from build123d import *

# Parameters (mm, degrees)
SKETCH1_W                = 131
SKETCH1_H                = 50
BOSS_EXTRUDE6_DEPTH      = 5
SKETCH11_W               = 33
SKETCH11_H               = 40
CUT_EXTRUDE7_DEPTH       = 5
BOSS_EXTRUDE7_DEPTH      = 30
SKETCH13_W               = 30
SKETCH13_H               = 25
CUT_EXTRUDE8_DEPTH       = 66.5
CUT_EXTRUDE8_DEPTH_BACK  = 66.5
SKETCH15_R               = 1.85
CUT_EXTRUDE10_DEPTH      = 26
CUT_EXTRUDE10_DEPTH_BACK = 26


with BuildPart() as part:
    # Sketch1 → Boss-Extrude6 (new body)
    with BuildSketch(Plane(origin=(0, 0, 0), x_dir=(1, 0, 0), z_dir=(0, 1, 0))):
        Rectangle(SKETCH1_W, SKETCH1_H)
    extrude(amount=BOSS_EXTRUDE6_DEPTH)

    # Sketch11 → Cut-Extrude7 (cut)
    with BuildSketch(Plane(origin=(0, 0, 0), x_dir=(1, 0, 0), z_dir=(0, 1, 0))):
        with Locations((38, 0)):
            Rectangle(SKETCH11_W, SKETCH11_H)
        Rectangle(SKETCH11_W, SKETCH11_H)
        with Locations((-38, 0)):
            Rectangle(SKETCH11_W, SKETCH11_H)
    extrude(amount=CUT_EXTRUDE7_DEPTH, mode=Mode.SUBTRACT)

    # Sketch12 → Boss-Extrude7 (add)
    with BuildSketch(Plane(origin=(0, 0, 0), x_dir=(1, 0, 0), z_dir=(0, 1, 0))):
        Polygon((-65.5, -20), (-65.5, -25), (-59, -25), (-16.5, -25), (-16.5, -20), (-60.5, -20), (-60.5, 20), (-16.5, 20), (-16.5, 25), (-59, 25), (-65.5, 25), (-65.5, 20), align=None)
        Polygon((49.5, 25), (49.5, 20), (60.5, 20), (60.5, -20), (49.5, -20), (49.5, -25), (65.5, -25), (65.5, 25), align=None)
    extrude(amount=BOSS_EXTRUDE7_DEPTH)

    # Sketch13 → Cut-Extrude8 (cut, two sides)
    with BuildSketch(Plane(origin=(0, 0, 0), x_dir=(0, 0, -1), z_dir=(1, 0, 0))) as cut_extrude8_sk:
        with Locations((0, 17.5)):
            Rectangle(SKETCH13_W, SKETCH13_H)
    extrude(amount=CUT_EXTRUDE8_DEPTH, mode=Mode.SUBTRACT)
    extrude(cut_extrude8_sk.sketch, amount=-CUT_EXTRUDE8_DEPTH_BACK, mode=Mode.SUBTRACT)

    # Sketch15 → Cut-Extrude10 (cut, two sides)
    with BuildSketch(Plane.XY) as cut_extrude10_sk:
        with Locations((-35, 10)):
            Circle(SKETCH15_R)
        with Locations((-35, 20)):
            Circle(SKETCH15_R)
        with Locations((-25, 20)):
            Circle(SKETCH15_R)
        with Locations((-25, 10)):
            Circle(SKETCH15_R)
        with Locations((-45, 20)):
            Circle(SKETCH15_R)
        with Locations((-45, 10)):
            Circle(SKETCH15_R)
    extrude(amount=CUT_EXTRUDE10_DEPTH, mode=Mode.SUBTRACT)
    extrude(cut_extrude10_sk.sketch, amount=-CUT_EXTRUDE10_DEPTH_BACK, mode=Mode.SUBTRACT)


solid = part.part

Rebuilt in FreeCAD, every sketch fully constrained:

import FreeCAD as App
import Part
import Sketcher

doc = App.newDocument("Part")
body = doc.addObject("PartDesign::Body", "Body")

sketch1 = body.newObject("Sketcher::SketchObject", "Sketch")
sketch1.AttachmentSupport = (doc.getObject("XZ_Plane"), [""])
sketch1.MapMode = "FlatFace"
sketch1.addGeometry([
    Part.LineSegment(App.Vector(-66, -25, 0), App.Vector(-66, 25, 0)),
    Part.LineSegment(App.Vector(-66, 25, 0), App.Vector(66, 25, 0)),
    Part.LineSegment(App.Vector(66, 25, 0), App.Vector(66, -25, 0)),
    Part.LineSegment(App.Vector(66, -25, 0), App.Vector(-66, -25, 0)),
], False)
sketch1.addConstraint([
    Sketcher.Constraint("Coincident", 0, 2, 1, 1),
    Sketcher.Constraint("Coincident", 1, 2, 2, 1),
    Sketcher.Constraint("Coincident", 2, 2, 3, 1),
    Sketcher.Constraint("Coincident", 3, 2, 0, 1),
    Sketcher.Constraint("Vertical", 0),
    Sketcher.Constraint("Horizontal", 1),
    Sketcher.Constraint("Vertical", 2),
    Sketcher.Constraint("Horizontal", 3),
    Sketcher.Constraint("Symmetric", 0, 2, 2, 2, -1, 1),
    Sketcher.Constraint("DistanceX", 1, 1, 1, 2, 131.0),
    Sketcher.Constraint("DistanceY", 0, 1, 0, 2, 50.0),
])
pad1 = body.newObject("PartDesign::Pad", "Pad")
pad1.Profile = sketch1
pad1.Length = 5
pad1.Reversed = True

sketch2 = body.newObject("Sketcher::SketchObject", "Sketch001")
sketch2.AttachmentSupport = (doc.getObject("XZ_Plane"), [""])
sketch2.MapMode = "FlatFace"
sketch2.addGeometry([
    Part.LineSegment(App.Vector(22, -20, 0), App.Vector(22, 20, 0)),
    Part.LineSegment(App.Vector(22, 20, 0), App.Vector(54, 20, 0)),
    Part.LineSegment(App.Vector(54, 20, 0), App.Vector(54, -20, 0)),
    Part.LineSegment(App.Vector(54, -20, 0), App.Vector(22, -20, 0)),
    Part.LineSegment(App.Vector(-16, -20, 0), App.Vector(-16, 20, 0)),
    Part.LineSegment(App.Vector(-16, 20, 0), App.Vector(16, 20, 0)),
    Part.LineSegment(App.Vector(16, 20, 0), App.Vector(16, -20, 0)),
    Part.LineSegment(App.Vector(16, -20, 0), App.Vector(-16, -20, 0)),
    Part.LineSegment(App.Vector(-54, -20, 0), App.Vector(-54, 20, 0)),
    Part.LineSegment(App.Vector(-54, 20, 0), App.Vector(-22, 20, 0)),
    Part.LineSegment(App.Vector(-22, 20, 0), App.Vector(-22, -20, 0)),
    Part.LineSegment(App.Vector(-22, -20, 0), App.Vector(-54, -20, 0)),
], False)
sketch2.addConstraint([
    Sketcher.Constraint("Coincident", 0, 2, 1, 1),
    Sketcher.Constraint("Coincident", 1, 2, 2, 1),
    Sketcher.Constraint("Coincident", 2, 2, 3, 1),
    Sketcher.Constraint("Coincident", 3, 2, 0, 1),
    Sketcher.Constraint("Coincident", 4, 2, 5, 1),
    Sketcher.Constraint("Coincident", 5, 2, 6, 1),
    Sketcher.Constraint("Coincident", 6, 2, 7, 1),
    Sketcher.Constraint("Coincident", 7, 2, 4, 1),
    Sketcher.Constraint("Coincident", 8, 2, 9, 1),
    Sketcher.Constraint("Coincident", 9, 2, 10, 1),
    Sketcher.Constraint("Coincident", 10, 2, 11, 1),
    Sketcher.Constraint("Coincident", 11, 2, 8, 1),
    Sketcher.Constraint("Vertical", 0),
    Sketcher.Constraint("Horizontal", 1),
    Sketcher.Constraint("Vertical", 2),
    Sketcher.Constraint("Horizontal", 3),
    Sketcher.Constraint("Vertical", 4),
    Sketcher.Constraint("Horizontal", 5),
    Sketcher.Constraint("Vertical", 6),
    Sketcher.Constraint("Horizontal", 7),
    Sketcher.Constraint("Vertical", 8),
    Sketcher.Constraint("Horizontal", 9),
    Sketcher.Constraint("Vertical", 10),
    Sketcher.Constraint("Horizontal", 11),
    Sketcher.Constraint("Symmetric", 4, 2, 6, 2, -1, 1),
    Sketcher.Constraint("Symmetric", 2, 2, 8, 2, -1, 1),
    Sketcher.Constraint("Symmetric", 0, 2, 10, 2, -1, 1),
    Sketcher.Constraint("Horizontal", 1, 2, 4, 2),
    Sketcher.Constraint("Horizontal", 3, 2, 6, 2),
    Sketcher.Constraint("Equal", 3, 5),
    Sketcher.Constraint("DistanceX", 1, 1, 1, 2, 33.0),
    Sketcher.Constraint("DistanceY", 0, 1, 0, 2, 40.0),
    Sketcher.Constraint("DistanceX", 4, 2, 0, 2, 38.0),
])
pocket1 = body.newObject("PartDesign::Pocket", "Pocket")
pocket1.Profile = sketch2
pocket1.Length = 5

sketch3 = body.newObject("Sketcher::SketchObject", "Sketch002")
sketch3.AttachmentSupport = (doc.getObject("XZ_Plane"), [""])
sketch3.MapMode = "FlatFace"
sketch3.addGeometry([
    Part.LineSegment(App.Vector(-66, 25, 0), App.Vector(-16, 25, 0)),
    Part.LineSegment(App.Vector(-16, 25, 0), App.Vector(-16, 20, 0)),
    Part.LineSegment(App.Vector(-16, 20, 0), App.Vector(-60, 20, 0)),
    Part.LineSegment(App.Vector(-60, 20, 0), App.Vector(-60, -20, 0)),
    Part.LineSegment(App.Vector(-60, -20, 0), App.Vector(-16, -20, 0)),
    Part.LineSegment(App.Vector(-16, -20, 0), App.Vector(-16, -25, 0)),
    Part.LineSegment(App.Vector(-16, -25, 0), App.Vector(-66, -25, 0)),
    Part.LineSegment(App.Vector(-66, -25, 0), App.Vector(-66, 25, 0)),
    Part.LineSegment(App.Vector(50, -25, 0), App.Vector(50, -20, 0)),
    Part.LineSegment(App.Vector(50, -20, 0), App.Vector(60, -20, 0)),
    Part.LineSegment(App.Vector(60, -20, 0), App.Vector(60, 20, 0)),
    Part.LineSegment(App.Vector(60, 20, 0), App.Vector(50, 20, 0)),
    Part.LineSegment(App.Vector(50, 20, 0), App.Vector(50, 25, 0)),
    Part.LineSegment(App.Vector(50, 25, 0), App.Vector(66, 25, 0)),
    Part.LineSegment(App.Vector(66, 25, 0), App.Vector(66, -25, 0)),
    Part.LineSegment(App.Vector(66, -25, 0), App.Vector(50, -25, 0)),
], False)
sketch3.addConstraint([
    Sketcher.Constraint("Coincident", 0, 2, 1, 1),
    Sketcher.Constraint("Coincident", 1, 2, 2, 1),
    Sketcher.Constraint("Coincident", 2, 2, 3, 1),
    Sketcher.Constraint("Coincident", 3, 2, 4, 1),
    Sketcher.Constraint("Coincident", 4, 2, 5, 1),
    Sketcher.Constraint("Coincident", 5, 2, 6, 1),
    Sketcher.Constraint("Coincident", 6, 2, 7, 1),
    Sketcher.Constraint("Coincident", 7, 2, 0, 1),
    Sketcher.Constraint("Coincident", 8, 2, 9, 1),
    Sketcher.Constraint("Coincident", 9, 2, 10, 1),
    Sketcher.Constraint("Coincident", 10, 2, 11, 1),
    Sketcher.Constraint("Coincident", 11, 2, 12, 1),
    Sketcher.Constraint("Coincident", 12, 2, 13, 1),
    Sketcher.Constraint("Coincident", 13, 2, 14, 1),
    Sketcher.Constraint("Coincident", 14, 2, 15, 1),
    Sketcher.Constraint("Coincident", 15, 2, 8, 1),
    Sketcher.Constraint("Horizontal", 0),
    Sketcher.Constraint("Vertical", 1),
    Sketcher.Constraint("Horizontal", 2),
    Sketcher.Constraint("Vertical", 3),
    Sketcher.Constraint("Horizontal", 4),
    Sketcher.Constraint("Vertical", 5),
    Sketcher.Constraint("Horizontal", 6),
    Sketcher.Constraint("Vertical", 7),
    Sketcher.Constraint("Vertical", 8),
    Sketcher.Constraint("Horizontal", 9),
    Sketcher.Constraint("Vertical", 10),
    Sketcher.Constraint("Horizontal", 11),
    Sketcher.Constraint("Vertical", 12),
    Sketcher.Constraint("Horizontal", 13),
    Sketcher.Constraint("Vertical", 14),
    Sketcher.Constraint("Horizontal", 15),
    Sketcher.Constraint("Symmetric", 2, 2, 9, 2, -1, 1),
    Sketcher.Constraint("Symmetric", 6, 2, 13, 2, -1, 1),
    Sketcher.Constraint("Symmetric", 1, 2, 4, 2, -1),
    Sketcher.Constraint("Symmetric", 8, 2, 11, 2, -1),
    Sketcher.Constraint("Horizontal", 7, 2, 12, 2),
    Sketcher.Constraint("Horizontal", 6, 2, 14, 2),
    Sketcher.Constraint("DistanceX", 0, 1, 0, 2, 49.0),
    Sketcher.Constraint("DistanceX", 2, 2, 2, 1, 44.0),
    Sketcher.Constraint("DistanceX", 9, 1, 9, 2, 11.0),
    Sketcher.Constraint("DistanceY", 1, 2, 1, 1, 5.0),
    Sketcher.Constraint("DistanceY", 3, 2, 3, 1, 40.0),
    Sketcher.Constraint("DistanceX", 4, 2, 8, 2, 66.0),
])
pad2 = body.newObject("PartDesign::Pad", "Pad001")
pad2.Profile = sketch3
pad2.Length = 30
pad2.Reversed = True

sketch4 = body.newObject("Sketcher::SketchObject", "Sketch003")
sketch4.AttachmentSupport = (doc.getObject("YZ_Plane"), [""])
sketch4.MapMode = "FlatFace"
sketch4.addGeometry([
    Part.LineSegment(App.Vector(30, 15, 0), App.Vector(5, 15, 0)),
    Part.LineSegment(App.Vector(5, 15, 0), App.Vector(5, -15, 0)),
    Part.LineSegment(App.Vector(5, -15, 0), App.Vector(30, -15, 0)),
    Part.LineSegment(App.Vector(30, -15, 0), App.Vector(30, 15, 0)),
], False)
sketch4.addConstraint([
    Sketcher.Constraint("Coincident", 0, 2, 1, 1),
    Sketcher.Constraint("Coincident", 1, 2, 2, 1),
    Sketcher.Constraint("Coincident", 2, 2, 3, 1),
    Sketcher.Constraint("Coincident", 3, 2, 0, 1),
    Sketcher.Constraint("Horizontal", 0),
    Sketcher.Constraint("Vertical", 1),
    Sketcher.Constraint("Horizontal", 2),
    Sketcher.Constraint("Vertical", 3),
    Sketcher.Constraint("DistanceX", 0, 2, 0, 1, 25.0),
    Sketcher.Constraint("DistanceY", 1, 2, 1, 1, 30.0),
    Sketcher.Constraint("DistanceX", -1, 1, 0, 2, 5.0),
    Sketcher.Constraint("DistanceY", -1, 1, 0, 2, 15.0),
])
pocket2 = body.newObject("PartDesign::Pocket", "Pocket001")
pocket2.Profile = sketch4
pocket2.Type = "ThroughAll"
pocket2.Midplane = True

sketch5 = body.newObject("Sketcher::SketchObject", "Sketch004")
sketch5.AttachmentSupport = (doc.getObject("XY_Plane"), [""])
sketch5.MapMode = "FlatFace"
sketch5.addGeometry([
    Part.Circle(App.Vector(-35, 10, 0), App.Vector(0, 0, 1), 1.9),
    Part.Circle(App.Vector(-35, 20, 0), App.Vector(0, 0, 1), 1.9),
    Part.Circle(App.Vector(-25, 20, 0), App.Vector(0, 0, 1), 1.9),
    Part.Circle(App.Vector(-25, 10, 0), App.Vector(0, 0, 1), 1.9),
    Part.Circle(App.Vector(-45, 20, 0), App.Vector(0, 0, 1), 1.9),
    Part.Circle(App.Vector(-45, 10, 0), App.Vector(0, 0, 1), 1.9),
], False)
sketch5.addConstraint([
    Sketcher.Constraint("Equal", 0, 1),
    Sketcher.Constraint("Equal", 1, 2),
    Sketcher.Constraint("Equal", 2, 3),
    Sketcher.Constraint("Equal", 3, 4),
    Sketcher.Constraint("Equal", 4, 5),
    Sketcher.Constraint("Horizontal", 1, 3, 2, 3),
    Sketcher.Constraint("Horizontal", 0, 3, 3, 3),
    Sketcher.Constraint("Horizontal", 2, 3, 4, 3),
    Sketcher.Constraint("Horizontal", 3, 3, 5, 3),
    Sketcher.Constraint("Vertical", 0, 3, 1, 3),
    Sketcher.Constraint("Vertical", 2, 3, 3, 3),
    Sketcher.Constraint("Vertical", 4, 3, 5, 3),
    Sketcher.Constraint("Diameter", 0, 3.7),
    Sketcher.Constraint("DistanceX", 0, 3, -1, 1, 35.0),
    Sketcher.Constraint("DistanceY", -1, 1, 0, 3, 10.0),
    Sketcher.Constraint("DistanceY", -1, 1, 1, 3, 20.0),
    Sketcher.Constraint("DistanceX", 2, 3, -1, 1, 25.0),
    Sketcher.Constraint("DistanceX", 4, 3, -1, 1, 45.0),
])
pocket3 = body.newObject("PartDesign::Pocket", "Pocket002")
pocket3.Profile = sketch5
pocket3.Type = "ThroughAll"
pocket3.Midplane = True

doc.recompute()
